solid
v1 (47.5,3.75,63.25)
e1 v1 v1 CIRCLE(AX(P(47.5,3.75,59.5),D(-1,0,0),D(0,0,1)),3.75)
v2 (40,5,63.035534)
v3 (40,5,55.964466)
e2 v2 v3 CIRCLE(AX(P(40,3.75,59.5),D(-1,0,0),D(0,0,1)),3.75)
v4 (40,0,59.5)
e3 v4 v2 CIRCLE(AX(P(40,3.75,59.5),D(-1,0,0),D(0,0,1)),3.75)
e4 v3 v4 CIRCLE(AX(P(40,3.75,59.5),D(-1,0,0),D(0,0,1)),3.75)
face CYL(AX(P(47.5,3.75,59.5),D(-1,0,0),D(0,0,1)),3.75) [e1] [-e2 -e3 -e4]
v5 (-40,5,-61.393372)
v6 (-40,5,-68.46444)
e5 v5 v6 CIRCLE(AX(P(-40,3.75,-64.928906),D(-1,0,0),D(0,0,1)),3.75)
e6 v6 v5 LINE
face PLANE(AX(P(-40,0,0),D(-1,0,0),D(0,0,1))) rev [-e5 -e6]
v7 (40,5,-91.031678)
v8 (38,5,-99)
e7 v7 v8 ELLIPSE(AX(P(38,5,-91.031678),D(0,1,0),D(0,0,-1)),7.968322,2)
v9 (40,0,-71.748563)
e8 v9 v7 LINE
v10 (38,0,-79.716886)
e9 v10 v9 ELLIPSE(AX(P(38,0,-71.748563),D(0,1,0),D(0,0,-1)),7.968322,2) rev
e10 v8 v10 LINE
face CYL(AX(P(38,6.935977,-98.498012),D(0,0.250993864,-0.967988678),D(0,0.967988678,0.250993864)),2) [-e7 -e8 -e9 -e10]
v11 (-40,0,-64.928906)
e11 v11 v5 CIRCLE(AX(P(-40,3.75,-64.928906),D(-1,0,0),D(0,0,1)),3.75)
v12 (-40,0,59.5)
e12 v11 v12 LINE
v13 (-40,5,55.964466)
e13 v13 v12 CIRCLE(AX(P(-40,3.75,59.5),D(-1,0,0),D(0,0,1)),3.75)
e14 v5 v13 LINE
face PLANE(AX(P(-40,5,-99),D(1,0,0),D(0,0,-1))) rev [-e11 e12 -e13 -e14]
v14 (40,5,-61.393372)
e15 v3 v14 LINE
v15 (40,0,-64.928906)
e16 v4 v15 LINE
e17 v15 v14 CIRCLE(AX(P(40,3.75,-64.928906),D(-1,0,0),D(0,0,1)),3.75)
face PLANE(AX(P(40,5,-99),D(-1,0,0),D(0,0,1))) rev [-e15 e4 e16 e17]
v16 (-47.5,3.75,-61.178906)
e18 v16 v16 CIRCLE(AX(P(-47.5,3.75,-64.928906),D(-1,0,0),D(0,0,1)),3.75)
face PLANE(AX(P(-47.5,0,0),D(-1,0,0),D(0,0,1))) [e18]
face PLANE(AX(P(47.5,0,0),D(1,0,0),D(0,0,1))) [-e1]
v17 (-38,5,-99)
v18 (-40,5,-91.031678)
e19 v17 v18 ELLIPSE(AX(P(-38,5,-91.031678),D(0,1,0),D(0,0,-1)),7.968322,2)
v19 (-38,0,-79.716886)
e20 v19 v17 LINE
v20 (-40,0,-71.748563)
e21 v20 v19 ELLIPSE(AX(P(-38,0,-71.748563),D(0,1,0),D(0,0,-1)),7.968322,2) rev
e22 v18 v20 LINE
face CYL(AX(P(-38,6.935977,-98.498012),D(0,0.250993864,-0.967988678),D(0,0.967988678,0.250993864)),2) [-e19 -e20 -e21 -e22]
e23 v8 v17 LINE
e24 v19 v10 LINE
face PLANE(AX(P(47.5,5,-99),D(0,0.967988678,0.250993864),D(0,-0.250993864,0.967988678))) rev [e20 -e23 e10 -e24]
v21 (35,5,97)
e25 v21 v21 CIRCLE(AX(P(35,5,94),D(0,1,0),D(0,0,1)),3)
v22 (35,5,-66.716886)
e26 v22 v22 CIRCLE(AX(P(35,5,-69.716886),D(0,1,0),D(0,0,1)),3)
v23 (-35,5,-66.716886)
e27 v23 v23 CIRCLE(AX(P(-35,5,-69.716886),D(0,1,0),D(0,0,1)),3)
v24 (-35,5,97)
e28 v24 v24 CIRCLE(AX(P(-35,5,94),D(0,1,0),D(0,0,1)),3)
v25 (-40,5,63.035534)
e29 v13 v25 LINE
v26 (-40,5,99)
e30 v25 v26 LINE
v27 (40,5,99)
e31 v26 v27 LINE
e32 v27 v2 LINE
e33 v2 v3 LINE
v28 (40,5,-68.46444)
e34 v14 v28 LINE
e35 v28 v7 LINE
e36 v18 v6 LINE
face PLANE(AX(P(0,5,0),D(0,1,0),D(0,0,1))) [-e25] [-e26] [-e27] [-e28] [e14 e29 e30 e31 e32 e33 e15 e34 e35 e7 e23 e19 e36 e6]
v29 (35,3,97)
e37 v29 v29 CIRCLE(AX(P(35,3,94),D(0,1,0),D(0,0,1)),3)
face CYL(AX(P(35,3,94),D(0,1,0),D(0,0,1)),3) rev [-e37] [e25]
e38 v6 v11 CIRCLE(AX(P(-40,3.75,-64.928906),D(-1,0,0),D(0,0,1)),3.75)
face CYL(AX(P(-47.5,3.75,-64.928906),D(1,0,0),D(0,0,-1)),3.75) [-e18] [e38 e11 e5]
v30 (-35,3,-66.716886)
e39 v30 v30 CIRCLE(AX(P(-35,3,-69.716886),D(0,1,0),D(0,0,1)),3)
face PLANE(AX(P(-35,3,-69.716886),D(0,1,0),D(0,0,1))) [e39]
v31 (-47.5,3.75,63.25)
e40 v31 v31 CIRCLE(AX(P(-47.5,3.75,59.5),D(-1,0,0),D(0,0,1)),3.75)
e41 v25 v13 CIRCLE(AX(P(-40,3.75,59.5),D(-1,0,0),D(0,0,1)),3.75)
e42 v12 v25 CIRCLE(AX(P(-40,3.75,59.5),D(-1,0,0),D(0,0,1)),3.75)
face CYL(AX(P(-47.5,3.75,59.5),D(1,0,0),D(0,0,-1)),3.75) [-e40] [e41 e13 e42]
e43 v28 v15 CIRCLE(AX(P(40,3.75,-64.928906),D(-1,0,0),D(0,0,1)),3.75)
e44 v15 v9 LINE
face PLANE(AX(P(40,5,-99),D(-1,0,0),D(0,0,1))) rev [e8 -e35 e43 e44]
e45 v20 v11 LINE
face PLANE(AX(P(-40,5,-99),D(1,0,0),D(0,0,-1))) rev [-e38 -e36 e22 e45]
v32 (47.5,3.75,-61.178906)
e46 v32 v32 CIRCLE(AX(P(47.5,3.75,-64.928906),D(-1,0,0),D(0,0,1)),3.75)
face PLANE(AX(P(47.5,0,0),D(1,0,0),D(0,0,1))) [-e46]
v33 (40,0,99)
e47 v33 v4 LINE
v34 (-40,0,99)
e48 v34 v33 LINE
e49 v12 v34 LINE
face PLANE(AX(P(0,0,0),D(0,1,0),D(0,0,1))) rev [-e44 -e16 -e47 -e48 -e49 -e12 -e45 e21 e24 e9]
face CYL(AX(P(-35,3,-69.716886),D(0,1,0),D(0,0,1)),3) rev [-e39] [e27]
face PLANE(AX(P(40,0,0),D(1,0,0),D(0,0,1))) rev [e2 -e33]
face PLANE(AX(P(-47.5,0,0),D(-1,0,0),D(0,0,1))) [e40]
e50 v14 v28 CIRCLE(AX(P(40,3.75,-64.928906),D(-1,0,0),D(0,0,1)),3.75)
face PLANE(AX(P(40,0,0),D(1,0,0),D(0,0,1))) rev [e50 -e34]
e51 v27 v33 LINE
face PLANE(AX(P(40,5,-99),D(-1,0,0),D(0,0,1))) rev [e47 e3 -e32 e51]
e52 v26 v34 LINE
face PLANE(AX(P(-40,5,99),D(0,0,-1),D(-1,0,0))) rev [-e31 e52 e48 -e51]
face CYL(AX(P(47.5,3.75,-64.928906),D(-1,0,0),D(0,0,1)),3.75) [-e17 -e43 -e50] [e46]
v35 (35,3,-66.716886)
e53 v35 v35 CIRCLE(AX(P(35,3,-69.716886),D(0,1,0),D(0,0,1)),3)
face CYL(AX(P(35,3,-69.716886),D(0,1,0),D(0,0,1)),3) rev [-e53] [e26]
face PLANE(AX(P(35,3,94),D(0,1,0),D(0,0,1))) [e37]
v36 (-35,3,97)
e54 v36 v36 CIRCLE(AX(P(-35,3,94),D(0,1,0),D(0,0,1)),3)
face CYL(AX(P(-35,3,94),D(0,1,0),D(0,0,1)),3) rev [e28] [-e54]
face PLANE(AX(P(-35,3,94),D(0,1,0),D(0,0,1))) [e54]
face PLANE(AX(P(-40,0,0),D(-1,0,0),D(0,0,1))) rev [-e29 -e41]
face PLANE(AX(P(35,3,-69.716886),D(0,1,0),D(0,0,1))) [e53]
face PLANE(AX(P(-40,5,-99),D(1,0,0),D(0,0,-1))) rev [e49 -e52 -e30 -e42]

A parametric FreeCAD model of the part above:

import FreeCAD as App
import Part
import Sketcher

V = App.Vector
Q = App.Units.Quantity


def edges_at(feature, points):
    """Names of the edges that pass closest to the given points."""
    edges = feature.Shape.Edges
    near = lambda p: min(range(len(edges)), key=lambda i: edges[i].distToShape(Part.Vertex(*p))[0])
    return sorted({f"Edge{near(p) + 1}" for p in points})

doc = App.newDocument("Part")
body = doc.addObject("PartDesign::Body", "Body")

sketch1 = doc.addObject("Sketcher::SketchObject", "Sketch")
body.addObject(sketch1)
sketch1.AttachmentSupport = (doc.XZ_Plane, [""])
sketch1.MapMode = "FlatFace"
sketch1.addGeometry([
    Part.LineSegment(V(-40, -99, 0), V(-40, 99, 0)),
    Part.LineSegment(V(-40, 99, 0), V(40, 99, 0)),
    Part.LineSegment(V(40, 99, 0), V(40, -99, 0)),
    Part.LineSegment(V(40, -99, 0), V(-40, -99, 0)),
], False)
sketch1.addConstraint([
    Sketcher.Constraint("Coincident", 0, 2, 1, 1),
    Sketcher.Constraint("Coincident", 1, 2, 2, 1),
    Sketcher.Constraint("Coincident", 2, 2, 3, 1),
    Sketcher.Constraint("Coincident", 3, 2, 0, 1),
    Sketcher.Constraint("Vertical", 0),
    Sketcher.Constraint("Horizontal", 1),
    Sketcher.Constraint("Vertical", 2),
    Sketcher.Constraint("Horizontal", 3),
    Sketcher.Constraint("Symmetric", 0, 2, 2, 2, -1, 1),
    Sketcher.Constraint("DistanceX", 1, 1, 1, 2, Q("80 mm")),
    Sketcher.Constraint("DistanceY", 0, 1, 0, 2, Q("198 mm")),
])
pad1 = doc.addObject("PartDesign::Pad", "Pad")
body.addObject(pad1)
pad1.Profile = sketch1
pad1.Length = 5
pad1.Reversed = True

sketch2 = doc.addObject("Sketcher::SketchObject", "Sketch001")
body.addObject(sketch2)
sketch2.AttachmentSupport = (doc.YZ_Plane, [""])
sketch2.MapMode = "FlatFace"
sketch2.AttachmentOffset = App.Placement(V(0, 0, -40), App.Rotation())
sketch2.addGeometry([
    Part.Circle(V(3.8, -64.9, 0), V(0, 0, 1), 3.8),
    Part.Circle(V(3.8, 59.5, 0), V(0, 0, 1), 3.8),
], False)
sketch2.addConstraint([
    Sketcher.Constraint("Equal", 0, 1),
    Sketcher.Constraint("Vertical", 0, 3, 1, 3),
    Sketcher.Constraint("Diameter", 0, Q("7.5 mm")),
    Sketcher.Constraint("DistanceY", -1, 1, 1, 3, Q("59.5 mm")),
    Sketcher.Constraint("DistanceX", -1, 1, 0, 3, Q("3.75 mm")),
    Sketcher.Constraint("DistanceY", 0, 3, -1, 1, Q("64.928906 mm")),
])
pad2 = doc.addObject("PartDesign::Pad", "Pad001")
body.addObject(pad2)
pad2.Profile = sketch2
pad2.Length = 7.5
pad2.Reversed = True
doc.recompute()

mirrored = doc.addObject("PartDesign::Mirrored", "Mirrored")
body.addObject(mirrored)
mirrored.Originals = [pad2]
mirrored.MirrorPlane = (doc.YZ_Plane, [""])
body.Tip = mirrored

sketch3 = doc.addObject("Sketcher::SketchObject", "Sketch002")
body.addObject(sketch3)
sketch3.AttachmentSupport = (doc.YZ_Plane, [""])
sketch3.MapMode = "FlatFace"
sketch3.AttachmentOffset = App.Placement(V(0, 0, -40), App.Rotation())
sketch3.addGeometry([
    Part.LineSegment(V(-2, -73, 0), V(5, -99, 0)),
    Part.LineSegment(V(5, -99, 0), V(-2, -104, 0)),
    Part.LineSegment(V(-2, -104, 0), V(-2, -73, 0)),
], False)
sketch3.addConstraint([
    Sketcher.Constraint("Coincident", 0, 2, 1, 1),
    Sketcher.Constraint("Coincident", 1, 2, 2, 1),
    Sketcher.Constraint("Coincident", 2, 2, 0, 1),
    Sketcher.Constraint("Vertical", 2),
    Sketcher.Constraint("DistanceX", -1, 1, 0, 2, Q("5 mm")),
    Sketcher.Constraint("DistanceY", 0, 2, -1, 1, Q("99 mm")),
    Sketcher.Constraint("DistanceY", 2, 1, 2, 2, Q("30.866798 mm")),
    Sketcher.Constraint("Distance", 1, Q("8.289721 mm")),
    Sketcher.Constraint("DistanceX", 1, 2, -1, 1, Q("1.759148 mm")),
])
pocket1 = doc.addObject("PartDesign::Pocket", "Pocket")
body.addObject(pocket1)
pocket1.Profile = sketch3
pocket1.Type = "ThroughAll"
pocket1.Reversed = True
doc.recompute()

fillet = doc.addObject("PartDesign::Fillet", "Fillet")
body.addObject(fillet)
fillet.Base = (pocket1, edges_at(pocket1, [(40, 2.5, -89.358), (-40, 2.5, -89.358)]))
fillet.Radius = 2

sketch4 = doc.addObject("Sketcher::SketchObject", "Sketch003")
body.addObject(sketch4)
sketch4.AttachmentSupport = (doc.XZ_Plane, [""])
sketch4.MapMode = "FlatFace"
sketch4.AttachmentOffset = App.Placement(V(0, 0, -5), App.Rotation())
sketch4.addGeometry([
    Part.Circle(V(-35, -69.7, 0), V(0, 0, 1), 3),
    Part.Circle(V(35, -69.7, 0), V(0, 0, 1), 3),
    Part.Circle(V(-35, 94, 0), V(0, 0, 1), 3),
    Part.Circle(V(35, 94, 0), V(0, 0, 1), 3),
], False)
sketch4.addConstraint([
    Sketcher.Constraint("Equal", 0, 1),
    Sketcher.Constraint("Equal", 1, 2),
    Sketcher.Constraint("Equal", 2, 3),
    Sketcher.Constraint("Symmetric", 0, 3, 1, 3, -2),
    Sketcher.Constraint("Symmetric", 2, 3, 3, 3, -2),
    Sketcher.Constraint("Vertical", 0, 3, 2, 3),
    Sketcher.Constraint("Diameter", 0, Q("6 mm")),
    Sketcher.Constraint("DistanceX", 0, 3, -1, 1, Q("35 mm")),
    Sketcher.Constraint("DistanceY", -1, 1, 2, 3, Q("94 mm")),
    Sketcher.Constraint("DistanceY", 0, 3, -1, 1, Q("69.716886 mm")),
])
pocket2 = doc.addObject("PartDesign::Pocket", "Pocket001")
body.addObject(pocket2)
pocket2.Profile = sketch4
pocket2.Length = 2
pocket2.Reversed = True

doc.recompute()
